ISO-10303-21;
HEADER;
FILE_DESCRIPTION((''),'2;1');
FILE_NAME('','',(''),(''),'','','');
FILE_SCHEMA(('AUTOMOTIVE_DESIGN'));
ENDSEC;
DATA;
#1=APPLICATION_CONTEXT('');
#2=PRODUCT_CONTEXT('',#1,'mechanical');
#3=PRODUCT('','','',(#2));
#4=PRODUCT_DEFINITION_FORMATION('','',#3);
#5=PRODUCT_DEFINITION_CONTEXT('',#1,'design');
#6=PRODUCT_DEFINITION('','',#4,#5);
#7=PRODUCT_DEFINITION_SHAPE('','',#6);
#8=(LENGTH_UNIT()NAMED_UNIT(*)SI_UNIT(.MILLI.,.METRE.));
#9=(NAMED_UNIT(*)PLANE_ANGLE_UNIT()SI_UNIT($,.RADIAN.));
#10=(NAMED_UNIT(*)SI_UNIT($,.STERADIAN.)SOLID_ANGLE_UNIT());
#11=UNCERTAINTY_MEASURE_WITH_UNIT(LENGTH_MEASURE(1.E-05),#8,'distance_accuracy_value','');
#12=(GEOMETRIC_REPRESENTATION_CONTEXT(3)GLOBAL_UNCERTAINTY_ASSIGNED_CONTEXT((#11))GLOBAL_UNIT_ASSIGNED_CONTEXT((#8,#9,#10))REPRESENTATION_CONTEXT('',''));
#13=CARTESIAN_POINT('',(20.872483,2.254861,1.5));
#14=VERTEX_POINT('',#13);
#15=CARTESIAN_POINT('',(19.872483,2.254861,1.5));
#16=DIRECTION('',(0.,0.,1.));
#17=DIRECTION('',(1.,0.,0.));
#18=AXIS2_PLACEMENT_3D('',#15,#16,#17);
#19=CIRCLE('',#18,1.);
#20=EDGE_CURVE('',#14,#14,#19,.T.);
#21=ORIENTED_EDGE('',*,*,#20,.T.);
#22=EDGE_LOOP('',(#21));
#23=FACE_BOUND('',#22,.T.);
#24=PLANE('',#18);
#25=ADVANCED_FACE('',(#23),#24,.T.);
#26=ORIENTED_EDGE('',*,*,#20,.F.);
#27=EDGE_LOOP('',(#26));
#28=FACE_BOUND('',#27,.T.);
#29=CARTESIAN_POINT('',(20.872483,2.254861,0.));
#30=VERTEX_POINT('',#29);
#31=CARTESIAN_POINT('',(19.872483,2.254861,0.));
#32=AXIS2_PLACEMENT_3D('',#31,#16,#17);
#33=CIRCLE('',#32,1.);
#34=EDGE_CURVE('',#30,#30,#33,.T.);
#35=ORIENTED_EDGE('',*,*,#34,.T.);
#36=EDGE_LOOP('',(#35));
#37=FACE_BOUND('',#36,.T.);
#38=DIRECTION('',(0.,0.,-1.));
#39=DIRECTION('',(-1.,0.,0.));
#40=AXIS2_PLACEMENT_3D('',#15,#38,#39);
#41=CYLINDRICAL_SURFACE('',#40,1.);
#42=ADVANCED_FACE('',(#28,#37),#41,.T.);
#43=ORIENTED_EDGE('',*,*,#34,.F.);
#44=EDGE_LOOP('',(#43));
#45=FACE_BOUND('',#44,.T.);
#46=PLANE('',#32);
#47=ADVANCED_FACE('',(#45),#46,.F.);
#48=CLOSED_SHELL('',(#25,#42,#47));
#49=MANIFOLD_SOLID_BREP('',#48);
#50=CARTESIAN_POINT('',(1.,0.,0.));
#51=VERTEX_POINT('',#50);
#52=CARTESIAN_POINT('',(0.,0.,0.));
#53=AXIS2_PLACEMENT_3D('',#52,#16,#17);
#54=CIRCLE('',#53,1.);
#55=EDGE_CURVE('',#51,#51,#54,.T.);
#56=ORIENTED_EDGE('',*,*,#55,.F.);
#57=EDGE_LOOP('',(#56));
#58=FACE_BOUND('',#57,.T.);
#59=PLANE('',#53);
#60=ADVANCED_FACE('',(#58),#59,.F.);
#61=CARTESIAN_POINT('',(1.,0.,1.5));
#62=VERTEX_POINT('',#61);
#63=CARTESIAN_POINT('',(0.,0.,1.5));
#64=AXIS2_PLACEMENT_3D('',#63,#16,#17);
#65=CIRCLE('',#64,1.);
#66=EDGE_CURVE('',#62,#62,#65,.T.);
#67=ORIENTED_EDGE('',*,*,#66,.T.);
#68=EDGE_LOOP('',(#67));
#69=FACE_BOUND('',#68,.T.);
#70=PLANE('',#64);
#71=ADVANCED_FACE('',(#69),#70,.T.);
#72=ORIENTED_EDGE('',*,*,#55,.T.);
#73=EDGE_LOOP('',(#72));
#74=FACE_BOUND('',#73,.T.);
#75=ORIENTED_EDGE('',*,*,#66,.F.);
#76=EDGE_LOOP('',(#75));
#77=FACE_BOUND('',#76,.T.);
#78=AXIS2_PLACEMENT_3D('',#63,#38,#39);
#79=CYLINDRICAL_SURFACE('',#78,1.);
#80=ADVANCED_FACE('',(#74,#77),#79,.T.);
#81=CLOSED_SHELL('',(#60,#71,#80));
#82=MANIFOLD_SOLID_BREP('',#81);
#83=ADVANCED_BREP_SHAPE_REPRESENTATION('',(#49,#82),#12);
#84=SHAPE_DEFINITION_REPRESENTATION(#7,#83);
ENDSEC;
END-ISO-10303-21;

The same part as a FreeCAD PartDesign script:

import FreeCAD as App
import Part
import Sketcher

doc = App.newDocument("Part")
params = doc.addObject("Spreadsheet::Sheet", "Params")
for row, (alias, value) in enumerate([
    ("sketch1_diameter", "2 mm"),
    ("pad1_length", "1.5 mm"),
    ("sketch2_diameter", "2 mm"),
    ("pad2_length", "1.5 mm"),
], start=1):
    params.set(f"A{row}", alias)
    params.set(f"B{row}", "=" + value)
    params.setAlias(f"B{row}", alias)

body = doc.addObject("PartDesign::Body", "Body")

sketch1 = doc.addObject("Sketcher::SketchObject", "Sketch")
body.addObject(sketch1)
sketch1.AttachmentSupport = (doc.XY_Plane, [""])
sketch1.MapMode = "FlatFace"
sketch1.addGeometry(Part.Circle(App.Vector(19.9, 2.3, 0), App.Vector(0, 0, 1), 1), False)
sketch1.addConstraint([
    Sketcher.Constraint("Diameter", 0, 2.0),
    Sketcher.Constraint("DistanceY", -1, 1, 0, 3, 2.254861),
    Sketcher.Constraint("DistanceX", -1, 1, 0, 3, 19.872483),
])
sketch1.setExpression("Constraints[0]", "Params.sketch1_diameter")
pad1 = doc.addObject("PartDesign::Pad", "Pad")
body.addObject(pad1)
pad1.Profile = sketch1
pad1.setExpression("Length", "Params.pad1_length")
body2 = doc.addObject("PartDesign::Body", "Body001")

sketch2 = doc.addObject("Sketcher::SketchObject", "Sketch001")
body2.addObject(sketch2)
sketch2.AttachmentSupport = (doc.getObject("XY_Plane001"), [""])
sketch2.MapMode = "FlatFace"
sketch2.addGeometry(Part.Circle(App.Vector(0, 0, 0), App.Vector(0, 0, 1), 1), False)
sketch2.addConstraint([
    Sketcher.Constraint("Coincident", 0, 3, -1, 1),
    Sketcher.Constraint("Diameter", 0, 2.0),
])
sketch2.setExpression("Constraints[1]", "Params.sketch2_diameter")
pad2 = doc.addObject("PartDesign::Pad", "Pad001")
body2.addObject(pad2)
pad2.Profile = sketch2
pad2.setExpression("Length", "Params.pad2_length")

doc.recompute()
